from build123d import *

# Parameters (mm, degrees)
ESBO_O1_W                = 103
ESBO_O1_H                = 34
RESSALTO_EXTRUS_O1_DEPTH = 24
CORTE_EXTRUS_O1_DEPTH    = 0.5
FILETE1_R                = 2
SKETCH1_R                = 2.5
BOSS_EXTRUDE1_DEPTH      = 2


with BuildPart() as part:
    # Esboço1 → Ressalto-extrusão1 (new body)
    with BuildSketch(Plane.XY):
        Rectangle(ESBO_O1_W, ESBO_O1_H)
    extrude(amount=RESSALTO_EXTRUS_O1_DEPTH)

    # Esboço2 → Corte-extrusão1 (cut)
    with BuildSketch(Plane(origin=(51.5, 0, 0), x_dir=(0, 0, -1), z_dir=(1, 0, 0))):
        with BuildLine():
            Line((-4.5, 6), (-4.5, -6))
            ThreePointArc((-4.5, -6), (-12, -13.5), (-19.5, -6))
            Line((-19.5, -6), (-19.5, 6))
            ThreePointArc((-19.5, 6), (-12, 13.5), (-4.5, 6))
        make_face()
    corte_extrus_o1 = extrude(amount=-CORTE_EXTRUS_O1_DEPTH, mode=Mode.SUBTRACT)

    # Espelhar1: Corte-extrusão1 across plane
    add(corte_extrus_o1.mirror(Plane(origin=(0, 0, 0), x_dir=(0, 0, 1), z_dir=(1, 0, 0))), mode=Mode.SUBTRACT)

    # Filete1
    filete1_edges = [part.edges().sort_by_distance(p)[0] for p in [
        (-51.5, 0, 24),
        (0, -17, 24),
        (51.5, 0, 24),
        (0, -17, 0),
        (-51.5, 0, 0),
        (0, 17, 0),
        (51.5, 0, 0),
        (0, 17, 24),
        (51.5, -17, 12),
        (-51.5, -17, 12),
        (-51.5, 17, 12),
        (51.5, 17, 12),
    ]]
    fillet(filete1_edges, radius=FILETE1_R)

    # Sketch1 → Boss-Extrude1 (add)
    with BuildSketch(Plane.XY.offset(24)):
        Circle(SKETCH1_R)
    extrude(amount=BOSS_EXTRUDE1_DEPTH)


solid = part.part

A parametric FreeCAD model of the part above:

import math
import FreeCAD as App
import Part
import Sketcher
from FreeCAD import Vector
Q = App.Units.Quantity


def edges_at(feature, points):
    """Names of the edges that pass closest to the given points."""
    edges = feature.Shape.Edges
    near = lambda p: min(range(len(edges)), key=lambda i: edges[i].distToShape(Part.Vertex(*p))[0])
    return sorted({f"Edge{near(p) + 1}" for p in points})

doc = App.newDocument("Part")
params = doc.addObject("Spreadsheet::Sheet", "Params")
for row, (alias, value) in enumerate([
    ("sketch1_width", "103 mm"),
    ("sketch1_height", "34 mm"),
    ("pad1_length", "24 mm"),
    ("sketch2_radius", "7.5 mm"),
    ("sketch2_width", "12 mm"),
    ("pocket1_length", "0.5 mm"),
    ("fillet_radius", "2 mm"),
    ("sketch3_diameter", "5 mm"),
    ("pad2_length", "2 mm"),
], start=1):
    params.set(f"A{row}", alias)
    params.set(f"B{row}", "=" + value)
    params.setAlias(f"B{row}", alias)

body = doc.addObject("PartDesign::Body", "Body")

# Sketch on XY plane
sketch1 = body.newObject("Sketcher::SketchObject", "Sketch")
sketch1.AttachmentSupport = (doc.getObject("XY_Plane"), [""])
sketch1.MapMode = "FlatFace"
sketch1.addGeometry(Part.LineSegment(Vector(-52, 17, 0), Vector(-52, -17, 0)), False)
sketch1.addGeometry(Part.LineSegment(Vector(-52, -17, 0), Vector(52, -17, 0)), False)
sketch1.addGeometry(Part.LineSegment(Vector(52, -17, 0), Vector(52, 17, 0)), False)
sketch1.addGeometry(Part.LineSegment(Vector(52, 17, 0), Vector(-52, 17, 0)), False)
sketch1.addConstraint(Sketcher.Constraint("Coincident", 0, 2, 1, 1))
sketch1.addConstraint(Sketcher.Constraint("Coincident", 1, 2, 2, 1))
sketch1.addConstraint(Sketcher.Constraint("Coincident", 2, 2, 3, 1))
sketch1.addConstraint(Sketcher.Constraint("Coincident", 3, 2, 0, 1))
sketch1.addConstraint(Sketcher.Constraint("Vertical", 0))
sketch1.addConstraint(Sketcher.Constraint("Horizontal", 1))
sketch1.addConstraint(Sketcher.Constraint("Vertical", 2))
sketch1.addConstraint(Sketcher.Constraint("Horizontal", 3))
sketch1.addConstraint(Sketcher.Constraint("Symmetric", 0, 2, 2, 2, -1, 1))
sketch1.addConstraint(Sketcher.Constraint("DistanceX", 1, 1, 1, 2, Q("103 mm")))
sketch1.addConstraint(Sketcher.Constraint("DistanceY", 0, 2, 0, 1, Q("34 mm")))
sketch1.setExpression("Constraints[9]", "Params.sketch1_width")
sketch1.setExpression("Constraints[10]", "Params.sketch1_height")
pad1 = body.newObject("PartDesign::Pad", "Pad")
pad1.Profile = sketch1
pad1.setExpression("Length", "Params.pad1_length")

# Sketch on YZ plane
sketch2 = body.newObject("Sketcher::SketchObject", "Sketch001")
sketch2.AttachmentSupport = (doc.getObject("YZ_Plane"), [""])
sketch2.MapMode = "FlatFace"
sketch2.AttachmentOffset = App.Placement(Vector(0, 0, 51.5), App.Rotation())
sketch2.addGeometry(Part.LineSegment(Vector(-6, 4, 0), Vector(6, 4, 0)), False)
sketch2.addGeometry(Part.ArcOfCircle(Part.Circle(Vector(6, 12, 0), Vector(0, 0, 1), 8), math.radians(-90), math.radians(90)), False)
sketch2.addGeometry(Part.LineSegment(Vector(6, 20, 0), Vector(-6, 20, 0)), False)
sketch2.addGeometry(Part.ArcOfCircle(Part.Circle(Vector(-6, 12, 0), Vector(0, 0, 1), 8), math.radians(90), math.radians(270)), False)
sketch2.addConstraint(Sketcher.Constraint("Tangent", 0, 2, 1, 1))
sketch2.addConstraint(Sketcher.Constraint("Tangent", 1, 2, 2, 1))
sketch2.addConstraint(Sketcher.Constraint("Tangent", 2, 2, 3, 1))
sketch2.addConstraint(Sketcher.Constraint("Tangent", 3, 2, 0, 1))
sketch2.addConstraint(Sketcher.Constraint("Horizontal", 0))
sketch2.addConstraint(Sketcher.Constraint("Horizontal", 2))
sketch2.addConstraint(Sketcher.Constraint("Radius", 1, Q("7.5 mm")))
sketch2.addConstraint(Sketcher.Constraint("DistanceX", 0, 1, 0, 2, Q("12 mm")))
sketch2.addConstraint(Sketcher.Constraint("DistanceX", -1, 1, 1, 3, Q("6 mm")))
sketch2.addConstraint(Sketcher.Constraint("DistanceY", -1, 1, 1, 3, Q("12 mm")))
sketch2.setExpression("Constraints[6]", "Params.sketch2_radius")
sketch2.setExpression("Constraints[7]", "Params.sketch2_width")
pocket1 = body.newObject("PartDesign::Pocket", "Pocket")
pocket1.Profile = sketch2
pocket1.setExpression("Length", "Params.pocket1_length")
doc.recompute()

mirrored = body.newObject("PartDesign::Mirrored", "Mirrored")
mirrored.Originals = [pocket1]
mirrored.MirrorPlane = (doc.getObject("YZ_Plane"), [""])
body.Tip = mirrored
doc.recompute()

fillet = body.newObject("PartDesign::Fillet", "Fillet")
fillet.Base = (mirrored, edges_at(mirrored, [
    (-51.5, 0, 24),
    (0, -17, 24),
    (51.5, 0, 24),
    (0, -17, 0),
    (-51.5, 0, 0),
    (0, 17, 0),
    (51.5, 0, 0),
    (0, 17, 24),
    (51.5, -17, 12),
    (-51.5, -17, 12),
    (-51.5, 17, 12),
    (51.5, 17, 12),
]))
fillet.setExpression("Radius", "Params.fillet_radius")

# Sketch on XY plane
sketch3 = body.newObject("Sketcher::SketchObject", "Sketch002")
sketch3.AttachmentSupport = (doc.getObject("XY_Plane"), [""])
sketch3.MapMode = "FlatFace"
sketch3.AttachmentOffset = App.Placement(Vector(0, 0, 24), App.Rotation())
sketch3.addGeometry(Part.Circle(Vector(0, 0, 0), Vector(0, 0, 1), 2.5), False)
sketch3.addConstraint(Sketcher.Constraint("Coincident", 0, 3, -1, 1))
sketch3.addConstraint(Sketcher.Constraint("Diameter", 0, Q("5 mm")))
sketch3.setExpression("Constraints[1]", "Params.sketch3_diameter")
pad2 = body.newObject("PartDesign::Pad", "Pad001")
pad2.Profile = sketch3
pad2.setExpression("Length", "Params.pad2_length")

doc.recompute()
